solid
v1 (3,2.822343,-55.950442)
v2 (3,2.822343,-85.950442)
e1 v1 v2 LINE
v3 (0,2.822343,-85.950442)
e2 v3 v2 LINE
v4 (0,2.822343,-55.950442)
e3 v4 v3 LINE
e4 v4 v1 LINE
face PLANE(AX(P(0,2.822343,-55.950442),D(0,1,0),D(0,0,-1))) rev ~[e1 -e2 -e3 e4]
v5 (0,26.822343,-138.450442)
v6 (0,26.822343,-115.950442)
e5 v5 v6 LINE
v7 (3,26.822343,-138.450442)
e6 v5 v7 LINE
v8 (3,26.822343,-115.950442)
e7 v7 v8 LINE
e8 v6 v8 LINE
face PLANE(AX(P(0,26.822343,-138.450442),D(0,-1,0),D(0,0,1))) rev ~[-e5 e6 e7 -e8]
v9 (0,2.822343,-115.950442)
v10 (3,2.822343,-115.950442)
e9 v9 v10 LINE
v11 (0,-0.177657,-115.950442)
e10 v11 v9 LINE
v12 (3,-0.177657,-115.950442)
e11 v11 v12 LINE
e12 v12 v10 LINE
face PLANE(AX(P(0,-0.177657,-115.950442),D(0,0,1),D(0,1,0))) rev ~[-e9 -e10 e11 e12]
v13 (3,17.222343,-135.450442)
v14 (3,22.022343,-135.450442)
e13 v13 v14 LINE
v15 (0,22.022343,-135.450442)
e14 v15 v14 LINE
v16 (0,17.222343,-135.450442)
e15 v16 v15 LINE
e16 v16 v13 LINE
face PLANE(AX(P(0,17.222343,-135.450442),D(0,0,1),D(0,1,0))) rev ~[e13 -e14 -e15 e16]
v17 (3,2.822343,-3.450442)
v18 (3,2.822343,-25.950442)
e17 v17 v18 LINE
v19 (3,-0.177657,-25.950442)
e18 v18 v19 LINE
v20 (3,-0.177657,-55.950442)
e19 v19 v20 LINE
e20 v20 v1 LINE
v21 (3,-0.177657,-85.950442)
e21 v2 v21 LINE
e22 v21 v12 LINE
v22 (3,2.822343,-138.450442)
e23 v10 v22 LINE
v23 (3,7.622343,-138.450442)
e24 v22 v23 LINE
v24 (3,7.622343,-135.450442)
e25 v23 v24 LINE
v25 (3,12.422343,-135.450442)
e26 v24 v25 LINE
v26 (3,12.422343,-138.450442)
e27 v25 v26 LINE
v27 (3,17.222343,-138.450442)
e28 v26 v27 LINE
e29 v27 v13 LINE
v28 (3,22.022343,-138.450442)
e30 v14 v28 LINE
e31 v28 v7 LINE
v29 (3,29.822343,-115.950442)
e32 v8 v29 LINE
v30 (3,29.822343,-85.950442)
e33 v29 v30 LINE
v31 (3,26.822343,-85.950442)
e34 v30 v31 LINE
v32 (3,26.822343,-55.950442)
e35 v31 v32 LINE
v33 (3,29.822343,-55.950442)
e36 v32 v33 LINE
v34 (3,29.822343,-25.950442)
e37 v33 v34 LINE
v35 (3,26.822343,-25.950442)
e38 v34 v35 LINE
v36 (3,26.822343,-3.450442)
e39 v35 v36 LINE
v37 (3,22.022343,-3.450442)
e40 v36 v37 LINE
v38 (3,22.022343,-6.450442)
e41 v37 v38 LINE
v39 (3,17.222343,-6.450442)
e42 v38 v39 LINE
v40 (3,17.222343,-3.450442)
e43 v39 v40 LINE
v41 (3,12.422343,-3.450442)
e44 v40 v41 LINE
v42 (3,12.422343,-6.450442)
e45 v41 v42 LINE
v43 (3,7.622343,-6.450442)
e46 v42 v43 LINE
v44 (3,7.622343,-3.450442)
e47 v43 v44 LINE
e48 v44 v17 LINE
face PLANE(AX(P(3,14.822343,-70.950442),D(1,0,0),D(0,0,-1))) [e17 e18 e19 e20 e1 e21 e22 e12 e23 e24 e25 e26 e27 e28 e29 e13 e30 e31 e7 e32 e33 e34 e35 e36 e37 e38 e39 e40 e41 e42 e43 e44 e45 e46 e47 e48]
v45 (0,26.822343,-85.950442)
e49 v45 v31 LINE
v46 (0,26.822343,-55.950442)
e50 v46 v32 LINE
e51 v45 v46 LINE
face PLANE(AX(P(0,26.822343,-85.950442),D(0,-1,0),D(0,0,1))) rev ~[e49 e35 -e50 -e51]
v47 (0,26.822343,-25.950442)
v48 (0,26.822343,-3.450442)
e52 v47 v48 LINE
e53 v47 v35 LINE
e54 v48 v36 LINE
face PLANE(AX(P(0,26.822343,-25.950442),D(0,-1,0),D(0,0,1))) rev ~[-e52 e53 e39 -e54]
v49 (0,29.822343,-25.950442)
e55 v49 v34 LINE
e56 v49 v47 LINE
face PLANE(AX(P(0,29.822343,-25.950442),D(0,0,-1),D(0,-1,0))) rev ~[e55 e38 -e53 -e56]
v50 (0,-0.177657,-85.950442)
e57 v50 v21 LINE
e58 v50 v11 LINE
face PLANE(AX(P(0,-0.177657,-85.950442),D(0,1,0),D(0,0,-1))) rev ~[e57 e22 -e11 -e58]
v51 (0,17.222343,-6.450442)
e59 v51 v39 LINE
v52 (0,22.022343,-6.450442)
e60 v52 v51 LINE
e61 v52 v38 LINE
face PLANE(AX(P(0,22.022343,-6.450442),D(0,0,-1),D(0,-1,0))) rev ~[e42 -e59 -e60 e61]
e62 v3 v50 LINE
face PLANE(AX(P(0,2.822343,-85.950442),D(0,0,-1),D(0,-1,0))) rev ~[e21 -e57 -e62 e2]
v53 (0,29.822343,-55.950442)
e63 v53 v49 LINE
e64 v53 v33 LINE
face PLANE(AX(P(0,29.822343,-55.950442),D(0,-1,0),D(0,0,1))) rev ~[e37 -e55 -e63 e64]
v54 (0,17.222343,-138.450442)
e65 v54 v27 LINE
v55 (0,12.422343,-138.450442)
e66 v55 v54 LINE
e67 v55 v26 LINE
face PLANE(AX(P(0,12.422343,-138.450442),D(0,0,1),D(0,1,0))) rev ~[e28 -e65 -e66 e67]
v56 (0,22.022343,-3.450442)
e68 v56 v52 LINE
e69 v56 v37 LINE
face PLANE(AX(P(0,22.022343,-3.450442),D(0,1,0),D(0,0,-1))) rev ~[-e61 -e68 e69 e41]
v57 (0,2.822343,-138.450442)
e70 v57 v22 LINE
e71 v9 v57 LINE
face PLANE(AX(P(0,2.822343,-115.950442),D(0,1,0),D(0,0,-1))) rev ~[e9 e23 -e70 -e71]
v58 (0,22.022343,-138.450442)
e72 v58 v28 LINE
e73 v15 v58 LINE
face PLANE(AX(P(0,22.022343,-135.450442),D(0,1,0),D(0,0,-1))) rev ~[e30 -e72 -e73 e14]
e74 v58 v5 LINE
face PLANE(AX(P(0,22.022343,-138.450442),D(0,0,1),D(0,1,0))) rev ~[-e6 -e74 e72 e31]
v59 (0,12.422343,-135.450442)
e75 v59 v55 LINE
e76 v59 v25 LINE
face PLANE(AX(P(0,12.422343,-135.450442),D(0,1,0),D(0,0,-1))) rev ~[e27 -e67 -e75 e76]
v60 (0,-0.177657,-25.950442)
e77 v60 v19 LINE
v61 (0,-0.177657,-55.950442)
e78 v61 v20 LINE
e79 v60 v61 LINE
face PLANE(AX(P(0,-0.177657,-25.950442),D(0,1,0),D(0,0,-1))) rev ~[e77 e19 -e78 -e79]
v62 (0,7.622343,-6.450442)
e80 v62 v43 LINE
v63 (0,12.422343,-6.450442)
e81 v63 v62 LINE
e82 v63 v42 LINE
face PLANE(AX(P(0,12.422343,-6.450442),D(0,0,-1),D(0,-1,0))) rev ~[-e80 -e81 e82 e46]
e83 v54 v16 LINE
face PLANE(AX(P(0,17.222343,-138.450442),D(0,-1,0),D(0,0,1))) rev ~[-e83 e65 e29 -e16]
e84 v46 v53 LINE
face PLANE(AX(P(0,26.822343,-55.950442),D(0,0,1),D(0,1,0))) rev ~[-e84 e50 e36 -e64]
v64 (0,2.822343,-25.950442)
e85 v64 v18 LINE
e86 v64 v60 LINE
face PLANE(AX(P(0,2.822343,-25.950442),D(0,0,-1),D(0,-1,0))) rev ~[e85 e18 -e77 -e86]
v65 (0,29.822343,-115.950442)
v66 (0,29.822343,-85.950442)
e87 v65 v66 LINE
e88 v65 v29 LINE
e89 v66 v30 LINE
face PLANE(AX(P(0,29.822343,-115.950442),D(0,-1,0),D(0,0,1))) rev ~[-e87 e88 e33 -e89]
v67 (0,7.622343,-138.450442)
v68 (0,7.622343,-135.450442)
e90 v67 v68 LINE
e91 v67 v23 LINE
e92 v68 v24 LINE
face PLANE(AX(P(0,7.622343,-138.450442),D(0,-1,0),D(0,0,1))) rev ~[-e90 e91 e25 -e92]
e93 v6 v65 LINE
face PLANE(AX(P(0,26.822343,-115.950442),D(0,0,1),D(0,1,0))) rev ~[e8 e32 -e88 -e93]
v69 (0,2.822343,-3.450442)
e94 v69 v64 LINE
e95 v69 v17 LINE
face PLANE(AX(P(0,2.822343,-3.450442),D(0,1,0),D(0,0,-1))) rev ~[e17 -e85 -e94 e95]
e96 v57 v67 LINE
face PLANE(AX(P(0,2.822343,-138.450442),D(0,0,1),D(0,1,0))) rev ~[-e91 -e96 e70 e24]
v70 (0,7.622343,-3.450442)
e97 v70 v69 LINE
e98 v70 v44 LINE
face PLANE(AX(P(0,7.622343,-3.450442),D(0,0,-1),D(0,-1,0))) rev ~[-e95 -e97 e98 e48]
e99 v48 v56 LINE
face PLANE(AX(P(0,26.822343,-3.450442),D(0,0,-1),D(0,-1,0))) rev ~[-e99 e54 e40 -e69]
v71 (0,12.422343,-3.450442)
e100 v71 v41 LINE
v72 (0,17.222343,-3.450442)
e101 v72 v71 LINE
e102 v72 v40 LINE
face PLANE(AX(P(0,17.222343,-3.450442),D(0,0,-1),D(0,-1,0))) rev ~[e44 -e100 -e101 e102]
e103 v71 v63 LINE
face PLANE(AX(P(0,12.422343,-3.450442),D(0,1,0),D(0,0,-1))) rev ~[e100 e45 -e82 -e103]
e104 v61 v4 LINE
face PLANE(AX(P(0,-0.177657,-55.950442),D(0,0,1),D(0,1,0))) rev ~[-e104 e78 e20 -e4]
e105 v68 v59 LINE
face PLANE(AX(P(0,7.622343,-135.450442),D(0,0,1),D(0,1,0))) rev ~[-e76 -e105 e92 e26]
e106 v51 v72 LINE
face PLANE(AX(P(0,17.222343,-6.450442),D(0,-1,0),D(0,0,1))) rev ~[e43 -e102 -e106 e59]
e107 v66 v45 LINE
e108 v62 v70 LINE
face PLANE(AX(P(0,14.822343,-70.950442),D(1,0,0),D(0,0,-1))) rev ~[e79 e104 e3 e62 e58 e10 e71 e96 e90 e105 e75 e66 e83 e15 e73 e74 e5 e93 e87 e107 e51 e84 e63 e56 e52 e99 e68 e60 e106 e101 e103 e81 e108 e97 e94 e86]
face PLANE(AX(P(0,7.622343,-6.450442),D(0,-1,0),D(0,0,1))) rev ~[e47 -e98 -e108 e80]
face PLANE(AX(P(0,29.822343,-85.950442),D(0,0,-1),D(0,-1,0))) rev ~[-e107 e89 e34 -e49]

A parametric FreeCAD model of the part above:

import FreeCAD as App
import Part
import Sketcher
from FreeCAD import Vector

doc = App.newDocument("Part")
body = doc.addObject("PartDesign::Body", "Body")

sketch1 = body.newObject("Sketcher::SketchObject", "Sketch")
sketch1.AttachmentSupport = (doc.getObject("YZ_Plane"), [""])
sketch1.MapMode = "FlatFace"
sketch1.addGeometry(Part.LineSegment(Vector(2.8, -26, 0), Vector(-0.2, -26, 0)), False)
sketch1.addGeometry(Part.LineSegment(Vector(-0.2, -26, 0), Vector(-0.2, -56, 0)), False)
sketch1.addGeometry(Part.LineSegment(Vector(-0.2, -56, 0), Vector(2.8, -56, 0)), False)
sketch1.addGeometry(Part.LineSegment(Vector(2.8, -56, 0), Vector(2.8, -86, 0)), False)
sketch1.addGeometry(Part.LineSegment(Vector(2.8, -86, 0), Vector(-0.2, -86, 0)), False)
sketch1.addGeometry(Part.LineSegment(Vector(-0.2, -86, 0), Vector(-0.2, -116, 0)), False)
sketch1.addGeometry(Part.LineSegment(Vector(-0.2, -116, 0), Vector(2.8, -116, 0)), False)
sketch1.addGeometry(Part.LineSegment(Vector(2.8, -116, 0), Vector(2.8, -138.5, 0)), False)
sketch1.addGeometry(Part.LineSegment(Vector(2.8, -138.5, 0), Vector(7.6, -138.5, 0)), False)
sketch1.addGeometry(Part.LineSegment(Vector(7.6, -138.5, 0), Vector(7.6, -135.5, 0)), False)
sketch1.addGeometry(Part.LineSegment(Vector(7.6, -135.5, 0), Vector(12.4, -135.5, 0)), False)
sketch1.addGeometry(Part.LineSegment(Vector(12.4, -135.5, 0), Vector(12.4, -138.5, 0)), False)
sketch1.addGeometry(Part.LineSegment(Vector(12.4, -138.5, 0), Vector(17.2, -138.5, 0)), False)
sketch1.addGeometry(Part.LineSegment(Vector(17.2, -138.5, 0), Vector(17.2, -135.5, 0)), False)
sketch1.addGeometry(Part.LineSegment(Vector(17.2, -135.5, 0), Vector(22, -135.5, 0)), False)
sketch1.addGeometry(Part.LineSegment(Vector(22, -135.5, 0), Vector(22, -138.5, 0)), False)
sketch1.addGeometry(Part.LineSegment(Vector(22, -138.5, 0), Vector(26.8, -138.5, 0)), False)
sketch1.addGeometry(Part.LineSegment(Vector(26.8, -138.5, 0), Vector(26.8, -116, 0)), False)
sketch1.addGeometry(Part.LineSegment(Vector(26.8, -116, 0), Vector(29.8, -116, 0)), False)
sketch1.addGeometry(Part.LineSegment(Vector(29.8, -116, 0), Vector(29.8, -86, 0)), False)
sketch1.addGeometry(Part.LineSegment(Vector(29.8, -86, 0), Vector(26.8, -86, 0)), False)
sketch1.addGeometry(Part.LineSegment(Vector(26.8, -86, 0), Vector(26.8, -56, 0)), False)
sketch1.addGeometry(Part.LineSegment(Vector(26.8, -56, 0), Vector(29.8, -56, 0)), False)
sketch1.addGeometry(Part.LineSegment(Vector(29.8, -56, 0), Vector(29.8, -26, 0)), False)
sketch1.addGeometry(Part.LineSegment(Vector(29.8, -26, 0), Vector(26.8, -26, 0)), False)
sketch1.addGeometry(Part.LineSegment(Vector(26.8, -26, 0), Vector(26.8, -3.5, 0)), False)
sketch1.addGeometry(Part.LineSegment(Vector(26.8, -3.5, 0), Vector(22, -3.5, 0)), False)
sketch1.addGeometry(Part.LineSegment(Vector(22, -3.5, 0), Vector(22, -6.5, 0)), False)
sketch1.addGeometry(Part.LineSegment(Vector(22, -6.5, 0), Vector(17.2, -6.5, 0)), False)
sketch1.addGeometry(Part.LineSegment(Vector(17.2, -6.5, 0), Vector(17.2, -3.5, 0)), False)
sketch1.addGeometry(Part.LineSegment(Vector(17.2, -3.5, 0), Vector(12.4, -3.5, 0)), False)
sketch1.addGeometry(Part.LineSegment(Vector(12.4, -3.5, 0), Vector(12.4, -6.5, 0)), False)
sketch1.addGeometry(Part.LineSegment(Vector(12.4, -6.5, 0), Vector(7.6, -6.5, 0)), False)
sketch1.addGeometry(Part.LineSegment(Vector(7.6, -6.5, 0), Vector(7.6, -3.5, 0)), False)
sketch1.addGeometry(Part.LineSegment(Vector(7.6, -3.5, 0), Vector(2.8, -3.5, 0)), False)
sketch1.addGeometry(Part.LineSegment(Vector(2.8, -3.5, 0), Vector(2.8, -26, 0)), False)
sketch1.addConstraint(Sketcher.Constraint("Coincident", 0, 2, 1, 1))
sketch1.addConstraint(Sketcher.Constraint("Coincident", 1, 2, 2, 1))
sketch1.addConstraint(Sketcher.Constraint("Coincident", 2, 2, 3, 1))
sketch1.addConstraint(Sketcher.Constraint("Coincident", 3, 2, 4, 1))
sketch1.addConstraint(Sketcher.Constraint("Coincident", 4, 2, 5, 1))
sketch1.addConstraint(Sketcher.Constraint("Coincident", 5, 2, 6, 1))
sketch1.addConstraint(Sketcher.Constraint("Coincident", 6, 2, 7, 1))
sketch1.addConstraint(Sketcher.Constraint("Coincident", 7, 2, 8, 1))
sketch1.addConstraint(Sketcher.Constraint("Coincident", 8, 2, 9, 1))
sketch1.addConstraint(Sketcher.Constraint("Coincident", 9, 2, 10, 1))
sketch1.addConstraint(Sketcher.Constraint("Coincident", 10, 2, 11, 1))
sketch1.addConstraint(Sketcher.Constraint("Coincident", 11, 2, 12, 1))
sketch1.addConstraint(Sketcher.Constraint("Coincident", 12, 2, 13, 1))
sketch1.addConstraint(Sketcher.Constraint("Coincident", 13, 2, 14, 1))
sketch1.addConstraint(Sketcher.Constraint("Coincident", 14, 2, 15, 1))
sketch1.addConstraint(Sketcher.Constraint("Coincident", 15, 2, 16, 1))
sketch1.addConstraint(Sketcher.Constraint("Coincident", 16, 2, 17, 1))
sketch1.addConstraint(Sketcher.Constraint("Coincident", 17, 2, 18, 1))
sketch1.addConstraint(Sketcher.Constraint("Coincident", 18, 2, 19, 1))
sketch1.addConstraint(Sketcher.Constraint("Coincident", 19, 2, 20, 1))
sketch1.addConstraint(Sketcher.Constraint("Coincident", 20, 2, 21, 1))
sketch1.addConstraint(Sketcher.Constraint("Coincident", 21, 2, 22, 1))
sketch1.addConstraint(Sketcher.Constraint("Coincident", 22, 2, 23, 1))
sketch1.addConstraint(Sketcher.Constraint("Coincident", 23, 2, 24, 1))
sketch1.addConstraint(Sketcher.Constraint("Coincident", 24, 2, 25, 1))
sketch1.addConstraint(Sketcher.Constraint("Coincident", 25, 2, 26, 1))
sketch1.addConstraint(Sketcher.Constraint("Coincident", 26, 2, 27, 1))
sketch1.addConstraint(Sketcher.Constraint("Coincident", 27, 2, 28, 1))
sketch1.addConstraint(Sketcher.Constraint("Coincident", 28, 2, 29, 1))
sketch1.addConstraint(Sketcher.Constraint("Coincident", 29, 2, 30, 1))
sketch1.addConstraint(Sketcher.Constraint("Coincident", 30, 2, 31, 1))
sketch1.addConstraint(Sketcher.Constraint("Coincident", 31, 2, 32, 1))
sketch1.addConstraint(Sketcher.Constraint("Coincident", 32, 2, 33, 1))
sketch1.addConstraint(Sketcher.Constraint("Coincident", 33, 2, 34, 1))
sketch1.addConstraint(Sketcher.Constraint("Coincident", 34, 2, 35, 1))
sketch1.addConstraint(Sketcher.Constraint("Coincident", 35, 2, 0, 1))
sketch1.addConstraint(Sketcher.Constraint("Horizontal", 0))
sketch1.addConstraint(Sketcher.Constraint("Vertical", 1))
sketch1.addConstraint(Sketcher.Constraint("Horizontal", 2))
sketch1.addConstraint(Sketcher.Constraint("Vertical", 3))
sketch1.addConstraint(Sketcher.Constraint("Horizontal", 4))
sketch1.addConstraint(Sketcher.Constraint("Vertical", 5))
sketch1.addConstraint(Sketcher.Constraint("Horizontal", 6))
sketch1.addConstraint(Sketcher.Constraint("Vertical", 7))
sketch1.addConstraint(Sketcher.Constraint("Horizontal", 8))
sketch1.addConstraint(Sketcher.Constraint("Vertical", 9))
sketch1.addConstraint(Sketcher.Constraint("Horizontal", 10))
sketch1.addConstraint(Sketcher.Constraint("Vertical", 11))
sketch1.addConstraint(Sketcher.Constraint("Horizontal", 12))
sketch1.addConstraint(Sketcher.Constraint("Vertical", 13))
sketch1.addConstraint(Sketcher.Constraint("Horizontal", 14))
sketch1.addConstraint(Sketcher.Constraint("Vertical", 15))
sketch1.addConstraint(Sketcher.Constraint("Horizontal", 16))
sketch1.addConstraint(Sketcher.Constraint("Vertical", 17))
sketch1.addConstraint(Sketcher.Constraint("Horizontal", 18))
sketch1.addConstraint(Sketcher.Constraint("Vertical", 19))
sketch1.addConstraint(Sketcher.Constraint("Horizontal", 20))
sketch1.addConstraint(Sketcher.Constraint("Vertical", 21))
sketch1.addConstraint(Sketcher.Constraint("Horizontal", 22))
sketch1.addConstraint(Sketcher.Constraint("Vertical", 23))
sketch1.addConstraint(Sketcher.Constraint("Horizontal", 24))
sketch1.addConstraint(Sketcher.Constraint("Vertical", 25))
sketch1.addConstraint(Sketcher.Constraint("Horizontal", 26))
sketch1.addConstraint(Sketcher.Constraint("Vertical", 27))
sketch1.addConstraint(Sketcher.Constraint("Horizontal", 28))
sketch1.addConstraint(Sketcher.Constraint("Vertical", 29))
sketch1.addConstraint(Sketcher.Constraint("Horizontal", 30))
sketch1.addConstraint(Sketcher.Constraint("Vertical", 31))
sketch1.addConstraint(Sketcher.Constraint("Horizontal", 32))
sketch1.addConstraint(Sketcher.Constraint("Vertical", 33))
sketch1.addConstraint(Sketcher.Constraint("Horizontal", 34))
sketch1.addConstraint(Sketcher.Constraint("Vertical", 35))
sketch1.addConstraint(Sketcher.Constraint("Horizontal", 8, 2, 11, 2))
sketch1.addConstraint(Sketcher.Constraint("Horizontal", 10, 2, 13, 2))
sketch1.addConstraint(Sketcher.Constraint("Horizontal", 12, 2, 15, 2))
sketch1.addConstraint(Sketcher.Constraint("Horizontal", 6, 2, 17, 2))
sketch1.addConstraint(Sketcher.Constraint("Horizontal", 4, 2, 19, 2))
sketch1.addConstraint(Sketcher.Constraint("Horizontal", 2, 2, 21, 2))
sketch1.addConstraint(Sketcher.Constraint("Horizontal", 0, 2, 23, 2))
sketch1.addConstraint(Sketcher.Constraint("Horizontal", 26, 2, 29, 2))
sketch1.addConstraint(Sketcher.Constraint("Horizontal", 28, 2, 31, 2))
sketch1.addConstraint(Sketcher.Constraint("Horizontal", 30, 2, 33, 2))
sketch1.addConstraint(Sketcher.Constraint("Vertical", 1, 2, 4, 2))
sketch1.addConstraint(Sketcher.Constraint("Vertical", 3, 2, 6, 2))
sketch1.addConstraint(Sketcher.Constraint("Vertical", 17, 2, 20, 2))
sketch1.addConstraint(Sketcher.Constraint("Vertical", 19, 2, 22, 2))
sketch1.addConstraint(Sketcher.Constraint("Vertical", 21, 2, 24, 2))
sketch1.addConstraint(Sketcher.Constraint("Vertical", 15, 2, 26, 2))
sketch1.addConstraint(Sketcher.Constraint("Vertical", 13, 2, 28, 2))
sketch1.addConstraint(Sketcher.Constraint("Vertical", 11, 2, 30, 2))
sketch1.addConstraint(Sketcher.Constraint("Vertical", 9, 2, 32, 2))
sketch1.addConstraint(Sketcher.Constraint("Vertical", 7, 2, 34, 2))
sketch1.addConstraint(Sketcher.Constraint("Equal", 8, 10))
sketch1.addConstraint(Sketcher.Constraint("Equal", 10, 12))
sketch1.addConstraint(Sketcher.Constraint("Equal", 12, 14))
sketch1.addConstraint(Sketcher.Constraint("Equal", 14, 16))
sketch1.addConstraint(Sketcher.Constraint("Equal", 6, 18))
sketch1.addConstraint(Sketcher.Constraint("Equal", 1, 3))
sketch1.addConstraint(Sketcher.Constraint("Equal", 3, 5))
sketch1.addConstraint(Sketcher.Constraint("Equal", 24, 9))
sketch1.addConstraint(Sketcher.Constraint("Equal", 17, 25))
sketch1.addConstraint(Sketcher.Constraint("Equal", 15, 27))
sketch1.addConstraint(Sketcher.Constraint("DistanceX", 0, 2, 0, 1, 3.0))
sketch1.addConstraint(Sketcher.Constraint("DistanceY", 1, 2, 1, 1, 30.0))
sketch1.addConstraint(Sketcher.Constraint("DistanceX", 8, 1, 8, 2, 4.8))
sketch1.addConstraint(Sketcher.Constraint("DistanceY", 7, 2, 7, 1, 22.5))
sketch1.addConstraint(Sketcher.Constraint("DistanceY", 0, 2, -1, 1, 25.950442))
sketch1.addConstraint(Sketcher.Constraint("DistanceX", 0, 2, -1, 1, 0.177657))
pad1 = body.newObject("PartDesign::Pad", "Pad")
pad1.Profile = sketch1
pad1.Length = 3

doc.recompute()
